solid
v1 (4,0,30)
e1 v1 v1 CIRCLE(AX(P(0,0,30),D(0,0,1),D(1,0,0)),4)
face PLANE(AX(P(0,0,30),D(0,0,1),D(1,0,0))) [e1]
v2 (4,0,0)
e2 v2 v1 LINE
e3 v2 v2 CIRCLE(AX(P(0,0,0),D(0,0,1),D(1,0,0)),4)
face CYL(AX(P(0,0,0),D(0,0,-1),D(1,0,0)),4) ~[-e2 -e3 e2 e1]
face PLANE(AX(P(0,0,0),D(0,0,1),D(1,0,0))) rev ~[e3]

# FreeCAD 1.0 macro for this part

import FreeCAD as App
import Part
import Sketcher
Q = App.Units.Quantity

doc = App.newDocument("Part")
body = doc.addObject("PartDesign::Body", "Body")

# Sketch on XY plane
sketch1 = doc.addObject("Sketcher::SketchObject", "Sketch")
body.addObject(sketch1)
sketch1.AttachmentSupport = (doc.XY_Plane, [""])
sketch1.MapMode = "FlatFace"
sketch1.addGeometry(Part.Circle(App.Vector(0, 0, 0), App.Vector(0, 0, 1), 4), False)
sketch1.addConstraint(Sketcher.Constraint("Coincident", 0, 3, -1, 1))
sketch1.addConstraint(Sketcher.Constraint("Diameter", 0, Q("8 mm")))
pad1 = doc.addObject("PartDesign::Pad", "Pad")
body.addObject(pad1)
pad1.Profile = sketch1
pad1.Length = 30

doc.recompute()
